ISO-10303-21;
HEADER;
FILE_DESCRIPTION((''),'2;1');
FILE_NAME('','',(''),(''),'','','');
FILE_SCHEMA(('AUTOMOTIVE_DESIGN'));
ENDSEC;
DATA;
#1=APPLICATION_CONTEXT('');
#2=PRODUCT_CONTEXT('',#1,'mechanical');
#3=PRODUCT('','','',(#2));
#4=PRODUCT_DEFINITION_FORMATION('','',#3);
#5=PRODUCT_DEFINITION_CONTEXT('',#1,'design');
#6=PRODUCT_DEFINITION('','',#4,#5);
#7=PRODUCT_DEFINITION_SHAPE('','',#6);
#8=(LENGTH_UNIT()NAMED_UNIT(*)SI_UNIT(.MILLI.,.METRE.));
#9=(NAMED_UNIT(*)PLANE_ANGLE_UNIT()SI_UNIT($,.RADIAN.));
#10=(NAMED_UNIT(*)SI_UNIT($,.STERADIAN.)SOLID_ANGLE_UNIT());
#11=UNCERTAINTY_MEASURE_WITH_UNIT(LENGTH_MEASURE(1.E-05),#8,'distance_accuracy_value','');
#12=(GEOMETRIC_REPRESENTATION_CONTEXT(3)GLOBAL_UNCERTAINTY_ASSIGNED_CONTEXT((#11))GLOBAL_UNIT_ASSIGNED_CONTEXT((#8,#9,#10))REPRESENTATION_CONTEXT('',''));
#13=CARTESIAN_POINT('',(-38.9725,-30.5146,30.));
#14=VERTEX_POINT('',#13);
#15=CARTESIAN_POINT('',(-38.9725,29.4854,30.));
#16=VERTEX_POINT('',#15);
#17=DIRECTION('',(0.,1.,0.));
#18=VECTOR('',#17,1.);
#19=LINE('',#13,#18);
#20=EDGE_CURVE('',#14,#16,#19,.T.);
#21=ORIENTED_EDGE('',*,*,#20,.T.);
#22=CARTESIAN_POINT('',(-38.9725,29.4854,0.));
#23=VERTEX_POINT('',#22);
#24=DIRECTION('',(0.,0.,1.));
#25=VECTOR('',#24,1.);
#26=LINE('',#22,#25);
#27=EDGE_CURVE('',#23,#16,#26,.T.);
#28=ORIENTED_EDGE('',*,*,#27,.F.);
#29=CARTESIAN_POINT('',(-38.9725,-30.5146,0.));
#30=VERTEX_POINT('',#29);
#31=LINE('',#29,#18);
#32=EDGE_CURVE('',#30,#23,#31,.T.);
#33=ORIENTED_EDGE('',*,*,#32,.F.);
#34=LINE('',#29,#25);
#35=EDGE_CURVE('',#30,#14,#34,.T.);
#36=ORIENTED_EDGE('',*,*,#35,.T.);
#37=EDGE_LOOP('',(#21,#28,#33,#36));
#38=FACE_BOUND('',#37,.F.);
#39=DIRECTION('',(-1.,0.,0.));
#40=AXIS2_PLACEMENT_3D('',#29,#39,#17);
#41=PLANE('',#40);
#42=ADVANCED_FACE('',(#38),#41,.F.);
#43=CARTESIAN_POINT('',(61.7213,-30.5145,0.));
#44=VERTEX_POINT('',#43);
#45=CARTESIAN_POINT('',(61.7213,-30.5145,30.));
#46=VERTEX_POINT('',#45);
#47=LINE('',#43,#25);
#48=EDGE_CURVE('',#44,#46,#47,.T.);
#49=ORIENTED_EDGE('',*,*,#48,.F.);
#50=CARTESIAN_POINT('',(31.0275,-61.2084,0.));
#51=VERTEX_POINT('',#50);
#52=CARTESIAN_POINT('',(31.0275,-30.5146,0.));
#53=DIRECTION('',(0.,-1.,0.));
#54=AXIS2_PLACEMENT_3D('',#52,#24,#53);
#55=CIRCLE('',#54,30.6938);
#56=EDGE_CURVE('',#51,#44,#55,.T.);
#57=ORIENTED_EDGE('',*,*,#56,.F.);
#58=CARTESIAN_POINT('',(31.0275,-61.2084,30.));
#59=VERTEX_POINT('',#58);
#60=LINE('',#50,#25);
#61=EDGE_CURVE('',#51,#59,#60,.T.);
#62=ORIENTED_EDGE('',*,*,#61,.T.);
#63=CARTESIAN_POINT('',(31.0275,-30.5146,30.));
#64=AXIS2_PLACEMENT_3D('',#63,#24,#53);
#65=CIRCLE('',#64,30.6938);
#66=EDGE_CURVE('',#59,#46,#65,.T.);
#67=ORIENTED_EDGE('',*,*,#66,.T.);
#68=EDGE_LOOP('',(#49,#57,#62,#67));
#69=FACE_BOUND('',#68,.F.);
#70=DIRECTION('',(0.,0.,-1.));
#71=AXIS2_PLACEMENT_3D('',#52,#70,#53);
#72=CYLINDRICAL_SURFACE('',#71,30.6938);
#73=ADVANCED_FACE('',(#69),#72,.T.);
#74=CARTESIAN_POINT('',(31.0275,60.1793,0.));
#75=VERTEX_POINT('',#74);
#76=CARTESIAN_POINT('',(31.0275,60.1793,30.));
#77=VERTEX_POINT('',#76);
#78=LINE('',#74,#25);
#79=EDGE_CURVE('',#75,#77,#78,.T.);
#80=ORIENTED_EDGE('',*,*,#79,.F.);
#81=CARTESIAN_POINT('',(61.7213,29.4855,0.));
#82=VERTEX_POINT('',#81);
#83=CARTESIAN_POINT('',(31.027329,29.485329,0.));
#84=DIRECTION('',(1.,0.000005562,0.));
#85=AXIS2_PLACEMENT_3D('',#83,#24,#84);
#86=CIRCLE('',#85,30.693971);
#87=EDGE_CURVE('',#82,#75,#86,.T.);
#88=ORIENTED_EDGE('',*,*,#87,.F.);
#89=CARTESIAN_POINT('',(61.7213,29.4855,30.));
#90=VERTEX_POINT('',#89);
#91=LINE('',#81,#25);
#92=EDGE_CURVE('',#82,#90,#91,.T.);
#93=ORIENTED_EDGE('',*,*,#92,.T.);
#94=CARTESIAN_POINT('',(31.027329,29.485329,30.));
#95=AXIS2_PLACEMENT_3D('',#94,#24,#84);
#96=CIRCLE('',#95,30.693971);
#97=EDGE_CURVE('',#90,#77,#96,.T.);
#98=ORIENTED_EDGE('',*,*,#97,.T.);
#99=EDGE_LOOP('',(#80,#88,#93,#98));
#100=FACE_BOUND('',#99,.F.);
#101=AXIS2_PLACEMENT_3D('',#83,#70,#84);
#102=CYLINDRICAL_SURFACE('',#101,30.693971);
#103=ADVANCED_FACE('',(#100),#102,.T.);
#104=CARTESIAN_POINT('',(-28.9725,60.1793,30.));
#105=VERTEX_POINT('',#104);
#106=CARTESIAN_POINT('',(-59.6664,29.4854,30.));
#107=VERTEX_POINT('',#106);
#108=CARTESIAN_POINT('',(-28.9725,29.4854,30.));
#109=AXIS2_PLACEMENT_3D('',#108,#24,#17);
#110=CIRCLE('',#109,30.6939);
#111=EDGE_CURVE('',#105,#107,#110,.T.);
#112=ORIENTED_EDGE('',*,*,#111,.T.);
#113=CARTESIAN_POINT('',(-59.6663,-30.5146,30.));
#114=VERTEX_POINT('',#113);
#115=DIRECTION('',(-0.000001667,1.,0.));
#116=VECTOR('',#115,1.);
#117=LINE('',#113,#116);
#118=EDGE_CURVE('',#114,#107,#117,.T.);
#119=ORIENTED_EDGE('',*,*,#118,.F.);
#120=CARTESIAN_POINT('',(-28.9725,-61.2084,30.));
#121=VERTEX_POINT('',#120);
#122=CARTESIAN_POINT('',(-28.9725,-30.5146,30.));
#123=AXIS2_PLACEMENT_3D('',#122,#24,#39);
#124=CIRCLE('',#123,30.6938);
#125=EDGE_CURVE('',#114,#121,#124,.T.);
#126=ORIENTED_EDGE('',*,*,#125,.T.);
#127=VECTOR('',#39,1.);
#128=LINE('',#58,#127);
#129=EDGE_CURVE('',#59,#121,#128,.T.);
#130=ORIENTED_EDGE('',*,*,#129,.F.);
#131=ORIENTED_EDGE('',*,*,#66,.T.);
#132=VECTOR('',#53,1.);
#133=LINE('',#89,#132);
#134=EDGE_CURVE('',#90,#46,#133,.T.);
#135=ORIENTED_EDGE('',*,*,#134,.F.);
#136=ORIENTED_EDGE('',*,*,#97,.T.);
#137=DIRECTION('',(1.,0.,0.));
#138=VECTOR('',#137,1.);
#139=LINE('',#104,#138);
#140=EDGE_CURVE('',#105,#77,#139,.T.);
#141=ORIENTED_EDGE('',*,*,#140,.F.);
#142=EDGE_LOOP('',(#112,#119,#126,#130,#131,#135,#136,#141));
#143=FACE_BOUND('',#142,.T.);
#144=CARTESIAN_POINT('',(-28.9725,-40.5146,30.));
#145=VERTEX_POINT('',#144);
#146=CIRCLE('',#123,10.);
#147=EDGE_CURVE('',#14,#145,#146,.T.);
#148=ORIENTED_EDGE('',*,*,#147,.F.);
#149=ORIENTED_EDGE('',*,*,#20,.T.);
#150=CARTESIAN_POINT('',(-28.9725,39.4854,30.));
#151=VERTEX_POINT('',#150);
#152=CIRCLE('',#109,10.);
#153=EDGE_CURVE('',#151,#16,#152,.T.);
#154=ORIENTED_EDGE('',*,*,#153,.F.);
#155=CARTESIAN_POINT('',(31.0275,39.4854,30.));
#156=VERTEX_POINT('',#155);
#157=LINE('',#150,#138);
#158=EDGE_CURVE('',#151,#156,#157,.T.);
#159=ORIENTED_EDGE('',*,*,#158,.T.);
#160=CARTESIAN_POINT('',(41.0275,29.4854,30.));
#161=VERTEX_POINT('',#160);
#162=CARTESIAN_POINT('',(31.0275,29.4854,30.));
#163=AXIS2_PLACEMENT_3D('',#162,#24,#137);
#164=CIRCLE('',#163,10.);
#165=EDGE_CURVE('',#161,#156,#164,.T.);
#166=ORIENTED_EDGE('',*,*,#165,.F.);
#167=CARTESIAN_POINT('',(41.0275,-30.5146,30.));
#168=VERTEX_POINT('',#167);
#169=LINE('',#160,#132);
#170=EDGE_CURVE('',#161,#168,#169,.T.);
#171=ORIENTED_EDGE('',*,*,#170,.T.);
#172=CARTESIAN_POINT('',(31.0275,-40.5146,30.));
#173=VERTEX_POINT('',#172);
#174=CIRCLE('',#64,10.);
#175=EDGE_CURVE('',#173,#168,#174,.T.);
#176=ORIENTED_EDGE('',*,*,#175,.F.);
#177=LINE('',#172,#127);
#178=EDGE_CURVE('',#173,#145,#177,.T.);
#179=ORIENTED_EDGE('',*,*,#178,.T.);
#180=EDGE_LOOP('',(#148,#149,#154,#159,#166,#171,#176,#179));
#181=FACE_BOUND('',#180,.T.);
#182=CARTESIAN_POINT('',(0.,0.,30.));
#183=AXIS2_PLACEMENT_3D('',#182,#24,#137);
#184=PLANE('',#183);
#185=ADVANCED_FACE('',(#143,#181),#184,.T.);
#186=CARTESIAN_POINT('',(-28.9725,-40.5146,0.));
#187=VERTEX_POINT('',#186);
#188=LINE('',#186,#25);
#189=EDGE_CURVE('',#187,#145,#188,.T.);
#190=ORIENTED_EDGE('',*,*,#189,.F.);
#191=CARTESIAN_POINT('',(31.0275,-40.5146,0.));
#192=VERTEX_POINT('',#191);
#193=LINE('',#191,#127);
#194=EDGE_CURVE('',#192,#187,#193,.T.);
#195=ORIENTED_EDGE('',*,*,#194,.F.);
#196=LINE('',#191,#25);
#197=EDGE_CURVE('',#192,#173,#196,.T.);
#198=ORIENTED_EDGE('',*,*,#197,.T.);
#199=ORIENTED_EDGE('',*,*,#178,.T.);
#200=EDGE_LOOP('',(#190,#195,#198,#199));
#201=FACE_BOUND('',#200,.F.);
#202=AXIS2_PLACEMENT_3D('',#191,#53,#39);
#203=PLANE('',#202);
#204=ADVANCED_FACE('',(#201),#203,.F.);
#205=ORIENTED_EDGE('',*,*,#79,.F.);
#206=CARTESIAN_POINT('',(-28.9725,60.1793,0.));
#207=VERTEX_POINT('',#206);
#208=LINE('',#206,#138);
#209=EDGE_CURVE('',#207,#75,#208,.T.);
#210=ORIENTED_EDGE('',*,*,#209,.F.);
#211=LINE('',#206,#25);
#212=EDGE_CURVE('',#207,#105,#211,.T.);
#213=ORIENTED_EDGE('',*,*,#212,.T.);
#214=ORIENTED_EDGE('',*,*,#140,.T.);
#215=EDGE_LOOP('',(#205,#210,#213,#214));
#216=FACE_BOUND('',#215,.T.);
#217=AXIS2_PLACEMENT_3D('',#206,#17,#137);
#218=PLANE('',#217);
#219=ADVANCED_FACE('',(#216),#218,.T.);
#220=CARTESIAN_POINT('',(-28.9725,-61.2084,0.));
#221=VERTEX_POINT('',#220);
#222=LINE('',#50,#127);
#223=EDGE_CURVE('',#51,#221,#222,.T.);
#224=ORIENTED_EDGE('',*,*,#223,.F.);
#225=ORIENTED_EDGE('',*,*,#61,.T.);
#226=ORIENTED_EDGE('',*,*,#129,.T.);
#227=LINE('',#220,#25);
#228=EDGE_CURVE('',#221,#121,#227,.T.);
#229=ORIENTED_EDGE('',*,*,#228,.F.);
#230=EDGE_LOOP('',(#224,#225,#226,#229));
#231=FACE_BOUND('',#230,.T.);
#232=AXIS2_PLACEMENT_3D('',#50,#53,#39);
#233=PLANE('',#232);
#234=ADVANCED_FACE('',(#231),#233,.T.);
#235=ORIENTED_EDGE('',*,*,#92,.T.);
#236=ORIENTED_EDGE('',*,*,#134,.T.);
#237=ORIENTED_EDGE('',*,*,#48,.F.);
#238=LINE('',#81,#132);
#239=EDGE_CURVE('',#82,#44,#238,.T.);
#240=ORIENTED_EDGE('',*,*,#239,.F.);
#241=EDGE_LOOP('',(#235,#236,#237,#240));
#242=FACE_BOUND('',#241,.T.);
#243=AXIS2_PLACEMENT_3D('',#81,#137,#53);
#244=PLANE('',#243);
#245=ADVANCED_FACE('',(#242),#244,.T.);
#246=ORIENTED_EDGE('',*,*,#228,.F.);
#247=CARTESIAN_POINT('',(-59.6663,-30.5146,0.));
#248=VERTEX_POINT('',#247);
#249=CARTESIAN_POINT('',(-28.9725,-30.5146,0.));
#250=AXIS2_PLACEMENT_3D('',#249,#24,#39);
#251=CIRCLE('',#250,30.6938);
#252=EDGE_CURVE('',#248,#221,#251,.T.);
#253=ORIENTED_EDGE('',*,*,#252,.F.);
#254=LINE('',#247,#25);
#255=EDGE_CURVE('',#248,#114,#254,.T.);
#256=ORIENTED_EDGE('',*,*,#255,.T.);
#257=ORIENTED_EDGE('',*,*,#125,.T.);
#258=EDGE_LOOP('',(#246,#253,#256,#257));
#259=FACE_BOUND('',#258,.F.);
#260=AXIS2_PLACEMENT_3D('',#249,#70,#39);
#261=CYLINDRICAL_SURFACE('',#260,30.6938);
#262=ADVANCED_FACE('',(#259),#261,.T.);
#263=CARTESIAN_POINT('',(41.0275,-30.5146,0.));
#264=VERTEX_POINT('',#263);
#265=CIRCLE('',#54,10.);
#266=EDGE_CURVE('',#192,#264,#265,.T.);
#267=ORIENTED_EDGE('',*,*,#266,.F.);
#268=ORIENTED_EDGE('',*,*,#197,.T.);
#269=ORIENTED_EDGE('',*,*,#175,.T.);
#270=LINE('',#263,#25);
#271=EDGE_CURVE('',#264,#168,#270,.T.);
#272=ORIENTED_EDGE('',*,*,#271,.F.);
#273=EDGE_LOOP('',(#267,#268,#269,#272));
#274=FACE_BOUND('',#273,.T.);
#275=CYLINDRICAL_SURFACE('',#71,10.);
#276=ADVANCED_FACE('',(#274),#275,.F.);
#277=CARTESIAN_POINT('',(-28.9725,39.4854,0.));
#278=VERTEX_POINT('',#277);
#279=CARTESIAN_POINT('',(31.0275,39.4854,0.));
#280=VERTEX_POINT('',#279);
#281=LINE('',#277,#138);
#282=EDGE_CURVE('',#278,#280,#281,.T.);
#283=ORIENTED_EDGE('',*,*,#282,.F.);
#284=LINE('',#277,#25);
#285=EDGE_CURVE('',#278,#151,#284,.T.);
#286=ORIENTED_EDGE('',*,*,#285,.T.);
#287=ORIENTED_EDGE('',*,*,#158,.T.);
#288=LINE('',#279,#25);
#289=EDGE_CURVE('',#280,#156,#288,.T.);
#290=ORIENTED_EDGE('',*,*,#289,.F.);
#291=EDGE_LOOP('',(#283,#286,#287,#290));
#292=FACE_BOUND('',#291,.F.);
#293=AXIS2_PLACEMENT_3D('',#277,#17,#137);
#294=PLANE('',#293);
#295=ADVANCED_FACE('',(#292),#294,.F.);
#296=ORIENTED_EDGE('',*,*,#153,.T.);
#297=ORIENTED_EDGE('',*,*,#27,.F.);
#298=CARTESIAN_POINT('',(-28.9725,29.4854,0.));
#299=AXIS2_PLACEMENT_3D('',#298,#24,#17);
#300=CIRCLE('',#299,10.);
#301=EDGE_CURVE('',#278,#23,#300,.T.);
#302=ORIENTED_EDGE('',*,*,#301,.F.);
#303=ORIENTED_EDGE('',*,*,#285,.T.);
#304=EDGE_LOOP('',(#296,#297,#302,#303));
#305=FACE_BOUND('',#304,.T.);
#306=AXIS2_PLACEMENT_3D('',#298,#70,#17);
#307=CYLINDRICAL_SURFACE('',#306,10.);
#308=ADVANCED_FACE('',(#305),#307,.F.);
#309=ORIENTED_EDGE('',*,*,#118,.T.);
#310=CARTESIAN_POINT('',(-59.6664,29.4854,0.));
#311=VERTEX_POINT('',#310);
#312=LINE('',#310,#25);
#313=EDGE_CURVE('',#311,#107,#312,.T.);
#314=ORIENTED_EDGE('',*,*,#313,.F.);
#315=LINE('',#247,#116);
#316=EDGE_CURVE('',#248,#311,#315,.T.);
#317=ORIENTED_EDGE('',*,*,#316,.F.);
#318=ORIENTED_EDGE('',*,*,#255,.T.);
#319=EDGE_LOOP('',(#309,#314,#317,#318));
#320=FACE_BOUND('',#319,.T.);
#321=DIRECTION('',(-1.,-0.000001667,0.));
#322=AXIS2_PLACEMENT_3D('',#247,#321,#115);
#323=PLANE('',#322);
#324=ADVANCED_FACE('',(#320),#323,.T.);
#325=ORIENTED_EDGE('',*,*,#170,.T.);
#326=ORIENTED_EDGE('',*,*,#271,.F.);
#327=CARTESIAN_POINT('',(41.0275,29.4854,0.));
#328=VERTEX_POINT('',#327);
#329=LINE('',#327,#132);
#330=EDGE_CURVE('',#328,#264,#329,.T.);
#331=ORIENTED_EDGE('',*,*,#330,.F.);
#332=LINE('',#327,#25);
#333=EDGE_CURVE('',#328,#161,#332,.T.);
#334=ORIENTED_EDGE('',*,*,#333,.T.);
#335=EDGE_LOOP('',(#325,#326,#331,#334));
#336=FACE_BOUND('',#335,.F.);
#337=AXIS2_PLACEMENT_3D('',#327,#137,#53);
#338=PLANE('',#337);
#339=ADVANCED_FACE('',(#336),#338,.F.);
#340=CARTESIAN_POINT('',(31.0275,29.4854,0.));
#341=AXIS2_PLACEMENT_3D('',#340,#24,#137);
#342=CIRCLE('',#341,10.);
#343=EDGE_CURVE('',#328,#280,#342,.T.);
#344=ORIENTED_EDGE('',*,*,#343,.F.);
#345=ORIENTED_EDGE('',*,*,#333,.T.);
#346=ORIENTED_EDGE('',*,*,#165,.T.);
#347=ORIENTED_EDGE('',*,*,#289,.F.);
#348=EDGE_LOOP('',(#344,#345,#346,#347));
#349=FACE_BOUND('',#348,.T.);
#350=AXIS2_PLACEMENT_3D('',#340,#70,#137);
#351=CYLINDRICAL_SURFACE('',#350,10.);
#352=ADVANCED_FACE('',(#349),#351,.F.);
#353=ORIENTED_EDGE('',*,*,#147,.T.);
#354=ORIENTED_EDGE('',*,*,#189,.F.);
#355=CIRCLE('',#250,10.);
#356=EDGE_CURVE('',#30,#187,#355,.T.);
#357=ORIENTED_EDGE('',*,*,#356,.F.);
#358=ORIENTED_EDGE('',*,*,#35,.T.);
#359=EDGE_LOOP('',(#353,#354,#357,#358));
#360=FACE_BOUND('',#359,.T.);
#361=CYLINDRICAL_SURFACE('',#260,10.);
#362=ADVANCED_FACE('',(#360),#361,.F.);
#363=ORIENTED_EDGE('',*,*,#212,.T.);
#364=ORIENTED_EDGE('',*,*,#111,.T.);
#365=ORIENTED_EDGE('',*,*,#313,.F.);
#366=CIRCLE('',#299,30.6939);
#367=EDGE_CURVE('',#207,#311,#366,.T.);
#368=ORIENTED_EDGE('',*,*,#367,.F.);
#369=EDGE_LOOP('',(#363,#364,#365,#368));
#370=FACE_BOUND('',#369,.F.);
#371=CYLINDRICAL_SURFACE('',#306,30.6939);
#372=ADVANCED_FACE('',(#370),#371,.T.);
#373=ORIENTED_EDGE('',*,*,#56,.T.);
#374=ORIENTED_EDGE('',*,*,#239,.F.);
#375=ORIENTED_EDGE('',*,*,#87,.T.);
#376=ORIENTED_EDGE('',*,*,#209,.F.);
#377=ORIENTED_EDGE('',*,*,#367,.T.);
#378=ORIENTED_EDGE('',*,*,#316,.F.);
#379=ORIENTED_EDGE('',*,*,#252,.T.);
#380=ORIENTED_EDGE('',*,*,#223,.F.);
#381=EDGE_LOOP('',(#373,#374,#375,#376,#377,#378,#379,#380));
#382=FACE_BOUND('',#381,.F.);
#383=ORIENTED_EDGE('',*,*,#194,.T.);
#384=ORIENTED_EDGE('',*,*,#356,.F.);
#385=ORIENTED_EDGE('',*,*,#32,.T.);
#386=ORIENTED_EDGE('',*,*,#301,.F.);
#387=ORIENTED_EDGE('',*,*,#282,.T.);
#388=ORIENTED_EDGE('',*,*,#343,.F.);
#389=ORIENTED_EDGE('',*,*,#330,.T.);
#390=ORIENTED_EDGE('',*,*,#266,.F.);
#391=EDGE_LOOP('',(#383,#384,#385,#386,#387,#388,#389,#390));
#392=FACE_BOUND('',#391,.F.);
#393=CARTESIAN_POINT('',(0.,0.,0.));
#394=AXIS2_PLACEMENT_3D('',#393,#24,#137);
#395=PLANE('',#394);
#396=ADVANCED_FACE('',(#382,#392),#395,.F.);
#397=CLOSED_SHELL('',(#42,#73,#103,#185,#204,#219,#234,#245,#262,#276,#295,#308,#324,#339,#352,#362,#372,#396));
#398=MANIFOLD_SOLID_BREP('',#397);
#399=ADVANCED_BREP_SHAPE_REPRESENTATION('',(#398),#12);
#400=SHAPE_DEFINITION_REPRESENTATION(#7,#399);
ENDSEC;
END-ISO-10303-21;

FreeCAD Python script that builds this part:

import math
import FreeCAD as App
import Part
import Sketcher

V = App.Vector
Q = App.Units.Quantity

doc = App.newDocument("Part")
body = doc.addObject("PartDesign::Body", "Body")

# Sketch on XY plane
sketch1 = body.newObject("Sketcher::SketchObject", "Sketch")
sketch1.AttachmentSupport = (doc.getObject("XY_Plane"), [""])
sketch1.MapMode = "FlatFace"
sketch1.addGeometry([
    Part.LineSegment(V(-59.6664, 29.4854, 0), V(-59.6663, -30.5146, 0)),  # 0
    Part.ArcOfCircle(Part.Circle(V(-28.9725, -30.5146, 0), V(0, 0, 1), 30.6938), math.radians(180), math.radians(270)),  # 1
    Part.LineSegment(V(-28.9725, -61.2084, 0), V(31.0275, -61.2084, 0)),  # 2
    Part.ArcOfCircle(Part.Circle(V(31.0275, -30.5146, 0), V(0, 0, 1), 30.6938), math.radians(-90), math.radians(0.000187)),  # 3
    Part.LineSegment(V(61.7213, -30.5145, 0), V(61.7213, 29.4855, 0)),  # 4
    Part.ArcOfCircle(Part.Circle(V(31.0275, 29.4854, 0), V(0, 0, 1), 30.6938), math.radians(0.000187), math.radians(90)),  # 5
    Part.LineSegment(V(31.0275, 60.1793, 0), V(-28.9725, 60.1793, 0)),  # 6
    Part.ArcOfCircle(Part.Circle(V(-28.9725, 29.4854, 0), V(0, 0, 1), 30.6939), math.radians(90), math.radians(180)),  # 7
    Part.ArcOfCircle(Part.Circle(V(-28.9725, -30.5146, 0), V(0, 0, 1), 10), math.radians(180), math.radians(270)),  # 8
    Part.LineSegment(V(-38.9725, -30.5146, 0), V(-38.9725, 29.4854, 0)),  # 9
    Part.ArcOfCircle(Part.Circle(V(-28.9725, 29.4854, 0), V(0, 0, 1), 10), math.radians(90), math.radians(180)),  # 10
    Part.LineSegment(V(-28.9725, 39.4854, 0), V(31.0275, 39.4854, 0)),  # 11
    Part.ArcOfCircle(Part.Circle(V(31.0275, 29.4854, 0), V(0, 0, 1), 10), math.radians(0), math.radians(90)),  # 12
    Part.LineSegment(V(41.0275, 29.4854, 0), V(41.0275, -30.5146, 0)),  # 13
    Part.ArcOfCircle(Part.Circle(V(31.0275, -30.5146, 0), V(0, 0, 1), 10), math.radians(-90), math.radians(0)),  # 14
    Part.LineSegment(V(31.0275, -40.5146, 0), V(-28.9725, -40.5146, 0)),  # 15
], False)
sketch1.addConstraint([
    Sketcher.Constraint("Tangent", 0, 2, 1, 1),
    Sketcher.Constraint("Tangent", 1, 2, 2, 1),
    Sketcher.Constraint("Tangent", 2, 2, 3, 1),
    Sketcher.Constraint("Tangent", 3, 2, 4, 1),
    Sketcher.Constraint("Tangent", 4, 2, 5, 1),
    Sketcher.Constraint("Tangent", 5, 2, 6, 1),
    Sketcher.Constraint("Tangent", 6, 2, 7, 1),
    Sketcher.Constraint("Tangent", 7, 2, 0, 1),
    Sketcher.Constraint("Tangent", 8, 1, 9, 1),
    Sketcher.Constraint("Tangent", 9, 2, 10, 2),
    Sketcher.Constraint("Tangent", 10, 1, 11, 1),
    Sketcher.Constraint("Tangent", 11, 2, 12, 2),
    Sketcher.Constraint("Tangent", 12, 1, 13, 1),
    Sketcher.Constraint("Tangent", 13, 2, 14, 2),
    Sketcher.Constraint("Tangent", 14, 1, 15, 1),
    Sketcher.Constraint("Tangent", 15, 2, 8, 2),
    Sketcher.Constraint("Vertical", 0),
    Sketcher.Constraint("Horizontal", 2),
    Sketcher.Constraint("Vertical", 4),
    Sketcher.Constraint("Horizontal", 6),
    Sketcher.Constraint("Vertical", 9),
    Sketcher.Constraint("Horizontal", 11),
    Sketcher.Constraint("Vertical", 13),
    Sketcher.Constraint("Horizontal", 15),
    Sketcher.Constraint("Coincident", 8, 3, 1, 3),
    Sketcher.Constraint("Coincident", 10, 3, 7, 3),
    Sketcher.Constraint("Coincident", 12, 3, 5, 3),
    Sketcher.Constraint("Equal", 1, 3),
    Sketcher.Constraint("Equal", 3, 5),
    Sketcher.Constraint("Equal", 5, 7),
    Sketcher.Constraint("Equal", 12, 14),
    Sketcher.Constraint("Equal", 15, 0),
    Sketcher.Constraint("Radius", 8, Q("10 mm")),
    Sketcher.Constraint("DistanceX", 2, 1, 2, 2, Q("60 mm")),
    Sketcher.Constraint("Radius", 7, Q("30.694 mm")),
    Sketcher.Constraint("DistanceX", 1, 3, -1, 1, Q("28.9725 mm")),
    Sketcher.Constraint("DistanceY", 1, 3, -1, 1, Q("30.5146 mm")),
])
pad1 = body.newObject("PartDesign::Pad", "Pad")
pad1.Profile = sketch1
pad1.Length = 30

doc.recompute()
